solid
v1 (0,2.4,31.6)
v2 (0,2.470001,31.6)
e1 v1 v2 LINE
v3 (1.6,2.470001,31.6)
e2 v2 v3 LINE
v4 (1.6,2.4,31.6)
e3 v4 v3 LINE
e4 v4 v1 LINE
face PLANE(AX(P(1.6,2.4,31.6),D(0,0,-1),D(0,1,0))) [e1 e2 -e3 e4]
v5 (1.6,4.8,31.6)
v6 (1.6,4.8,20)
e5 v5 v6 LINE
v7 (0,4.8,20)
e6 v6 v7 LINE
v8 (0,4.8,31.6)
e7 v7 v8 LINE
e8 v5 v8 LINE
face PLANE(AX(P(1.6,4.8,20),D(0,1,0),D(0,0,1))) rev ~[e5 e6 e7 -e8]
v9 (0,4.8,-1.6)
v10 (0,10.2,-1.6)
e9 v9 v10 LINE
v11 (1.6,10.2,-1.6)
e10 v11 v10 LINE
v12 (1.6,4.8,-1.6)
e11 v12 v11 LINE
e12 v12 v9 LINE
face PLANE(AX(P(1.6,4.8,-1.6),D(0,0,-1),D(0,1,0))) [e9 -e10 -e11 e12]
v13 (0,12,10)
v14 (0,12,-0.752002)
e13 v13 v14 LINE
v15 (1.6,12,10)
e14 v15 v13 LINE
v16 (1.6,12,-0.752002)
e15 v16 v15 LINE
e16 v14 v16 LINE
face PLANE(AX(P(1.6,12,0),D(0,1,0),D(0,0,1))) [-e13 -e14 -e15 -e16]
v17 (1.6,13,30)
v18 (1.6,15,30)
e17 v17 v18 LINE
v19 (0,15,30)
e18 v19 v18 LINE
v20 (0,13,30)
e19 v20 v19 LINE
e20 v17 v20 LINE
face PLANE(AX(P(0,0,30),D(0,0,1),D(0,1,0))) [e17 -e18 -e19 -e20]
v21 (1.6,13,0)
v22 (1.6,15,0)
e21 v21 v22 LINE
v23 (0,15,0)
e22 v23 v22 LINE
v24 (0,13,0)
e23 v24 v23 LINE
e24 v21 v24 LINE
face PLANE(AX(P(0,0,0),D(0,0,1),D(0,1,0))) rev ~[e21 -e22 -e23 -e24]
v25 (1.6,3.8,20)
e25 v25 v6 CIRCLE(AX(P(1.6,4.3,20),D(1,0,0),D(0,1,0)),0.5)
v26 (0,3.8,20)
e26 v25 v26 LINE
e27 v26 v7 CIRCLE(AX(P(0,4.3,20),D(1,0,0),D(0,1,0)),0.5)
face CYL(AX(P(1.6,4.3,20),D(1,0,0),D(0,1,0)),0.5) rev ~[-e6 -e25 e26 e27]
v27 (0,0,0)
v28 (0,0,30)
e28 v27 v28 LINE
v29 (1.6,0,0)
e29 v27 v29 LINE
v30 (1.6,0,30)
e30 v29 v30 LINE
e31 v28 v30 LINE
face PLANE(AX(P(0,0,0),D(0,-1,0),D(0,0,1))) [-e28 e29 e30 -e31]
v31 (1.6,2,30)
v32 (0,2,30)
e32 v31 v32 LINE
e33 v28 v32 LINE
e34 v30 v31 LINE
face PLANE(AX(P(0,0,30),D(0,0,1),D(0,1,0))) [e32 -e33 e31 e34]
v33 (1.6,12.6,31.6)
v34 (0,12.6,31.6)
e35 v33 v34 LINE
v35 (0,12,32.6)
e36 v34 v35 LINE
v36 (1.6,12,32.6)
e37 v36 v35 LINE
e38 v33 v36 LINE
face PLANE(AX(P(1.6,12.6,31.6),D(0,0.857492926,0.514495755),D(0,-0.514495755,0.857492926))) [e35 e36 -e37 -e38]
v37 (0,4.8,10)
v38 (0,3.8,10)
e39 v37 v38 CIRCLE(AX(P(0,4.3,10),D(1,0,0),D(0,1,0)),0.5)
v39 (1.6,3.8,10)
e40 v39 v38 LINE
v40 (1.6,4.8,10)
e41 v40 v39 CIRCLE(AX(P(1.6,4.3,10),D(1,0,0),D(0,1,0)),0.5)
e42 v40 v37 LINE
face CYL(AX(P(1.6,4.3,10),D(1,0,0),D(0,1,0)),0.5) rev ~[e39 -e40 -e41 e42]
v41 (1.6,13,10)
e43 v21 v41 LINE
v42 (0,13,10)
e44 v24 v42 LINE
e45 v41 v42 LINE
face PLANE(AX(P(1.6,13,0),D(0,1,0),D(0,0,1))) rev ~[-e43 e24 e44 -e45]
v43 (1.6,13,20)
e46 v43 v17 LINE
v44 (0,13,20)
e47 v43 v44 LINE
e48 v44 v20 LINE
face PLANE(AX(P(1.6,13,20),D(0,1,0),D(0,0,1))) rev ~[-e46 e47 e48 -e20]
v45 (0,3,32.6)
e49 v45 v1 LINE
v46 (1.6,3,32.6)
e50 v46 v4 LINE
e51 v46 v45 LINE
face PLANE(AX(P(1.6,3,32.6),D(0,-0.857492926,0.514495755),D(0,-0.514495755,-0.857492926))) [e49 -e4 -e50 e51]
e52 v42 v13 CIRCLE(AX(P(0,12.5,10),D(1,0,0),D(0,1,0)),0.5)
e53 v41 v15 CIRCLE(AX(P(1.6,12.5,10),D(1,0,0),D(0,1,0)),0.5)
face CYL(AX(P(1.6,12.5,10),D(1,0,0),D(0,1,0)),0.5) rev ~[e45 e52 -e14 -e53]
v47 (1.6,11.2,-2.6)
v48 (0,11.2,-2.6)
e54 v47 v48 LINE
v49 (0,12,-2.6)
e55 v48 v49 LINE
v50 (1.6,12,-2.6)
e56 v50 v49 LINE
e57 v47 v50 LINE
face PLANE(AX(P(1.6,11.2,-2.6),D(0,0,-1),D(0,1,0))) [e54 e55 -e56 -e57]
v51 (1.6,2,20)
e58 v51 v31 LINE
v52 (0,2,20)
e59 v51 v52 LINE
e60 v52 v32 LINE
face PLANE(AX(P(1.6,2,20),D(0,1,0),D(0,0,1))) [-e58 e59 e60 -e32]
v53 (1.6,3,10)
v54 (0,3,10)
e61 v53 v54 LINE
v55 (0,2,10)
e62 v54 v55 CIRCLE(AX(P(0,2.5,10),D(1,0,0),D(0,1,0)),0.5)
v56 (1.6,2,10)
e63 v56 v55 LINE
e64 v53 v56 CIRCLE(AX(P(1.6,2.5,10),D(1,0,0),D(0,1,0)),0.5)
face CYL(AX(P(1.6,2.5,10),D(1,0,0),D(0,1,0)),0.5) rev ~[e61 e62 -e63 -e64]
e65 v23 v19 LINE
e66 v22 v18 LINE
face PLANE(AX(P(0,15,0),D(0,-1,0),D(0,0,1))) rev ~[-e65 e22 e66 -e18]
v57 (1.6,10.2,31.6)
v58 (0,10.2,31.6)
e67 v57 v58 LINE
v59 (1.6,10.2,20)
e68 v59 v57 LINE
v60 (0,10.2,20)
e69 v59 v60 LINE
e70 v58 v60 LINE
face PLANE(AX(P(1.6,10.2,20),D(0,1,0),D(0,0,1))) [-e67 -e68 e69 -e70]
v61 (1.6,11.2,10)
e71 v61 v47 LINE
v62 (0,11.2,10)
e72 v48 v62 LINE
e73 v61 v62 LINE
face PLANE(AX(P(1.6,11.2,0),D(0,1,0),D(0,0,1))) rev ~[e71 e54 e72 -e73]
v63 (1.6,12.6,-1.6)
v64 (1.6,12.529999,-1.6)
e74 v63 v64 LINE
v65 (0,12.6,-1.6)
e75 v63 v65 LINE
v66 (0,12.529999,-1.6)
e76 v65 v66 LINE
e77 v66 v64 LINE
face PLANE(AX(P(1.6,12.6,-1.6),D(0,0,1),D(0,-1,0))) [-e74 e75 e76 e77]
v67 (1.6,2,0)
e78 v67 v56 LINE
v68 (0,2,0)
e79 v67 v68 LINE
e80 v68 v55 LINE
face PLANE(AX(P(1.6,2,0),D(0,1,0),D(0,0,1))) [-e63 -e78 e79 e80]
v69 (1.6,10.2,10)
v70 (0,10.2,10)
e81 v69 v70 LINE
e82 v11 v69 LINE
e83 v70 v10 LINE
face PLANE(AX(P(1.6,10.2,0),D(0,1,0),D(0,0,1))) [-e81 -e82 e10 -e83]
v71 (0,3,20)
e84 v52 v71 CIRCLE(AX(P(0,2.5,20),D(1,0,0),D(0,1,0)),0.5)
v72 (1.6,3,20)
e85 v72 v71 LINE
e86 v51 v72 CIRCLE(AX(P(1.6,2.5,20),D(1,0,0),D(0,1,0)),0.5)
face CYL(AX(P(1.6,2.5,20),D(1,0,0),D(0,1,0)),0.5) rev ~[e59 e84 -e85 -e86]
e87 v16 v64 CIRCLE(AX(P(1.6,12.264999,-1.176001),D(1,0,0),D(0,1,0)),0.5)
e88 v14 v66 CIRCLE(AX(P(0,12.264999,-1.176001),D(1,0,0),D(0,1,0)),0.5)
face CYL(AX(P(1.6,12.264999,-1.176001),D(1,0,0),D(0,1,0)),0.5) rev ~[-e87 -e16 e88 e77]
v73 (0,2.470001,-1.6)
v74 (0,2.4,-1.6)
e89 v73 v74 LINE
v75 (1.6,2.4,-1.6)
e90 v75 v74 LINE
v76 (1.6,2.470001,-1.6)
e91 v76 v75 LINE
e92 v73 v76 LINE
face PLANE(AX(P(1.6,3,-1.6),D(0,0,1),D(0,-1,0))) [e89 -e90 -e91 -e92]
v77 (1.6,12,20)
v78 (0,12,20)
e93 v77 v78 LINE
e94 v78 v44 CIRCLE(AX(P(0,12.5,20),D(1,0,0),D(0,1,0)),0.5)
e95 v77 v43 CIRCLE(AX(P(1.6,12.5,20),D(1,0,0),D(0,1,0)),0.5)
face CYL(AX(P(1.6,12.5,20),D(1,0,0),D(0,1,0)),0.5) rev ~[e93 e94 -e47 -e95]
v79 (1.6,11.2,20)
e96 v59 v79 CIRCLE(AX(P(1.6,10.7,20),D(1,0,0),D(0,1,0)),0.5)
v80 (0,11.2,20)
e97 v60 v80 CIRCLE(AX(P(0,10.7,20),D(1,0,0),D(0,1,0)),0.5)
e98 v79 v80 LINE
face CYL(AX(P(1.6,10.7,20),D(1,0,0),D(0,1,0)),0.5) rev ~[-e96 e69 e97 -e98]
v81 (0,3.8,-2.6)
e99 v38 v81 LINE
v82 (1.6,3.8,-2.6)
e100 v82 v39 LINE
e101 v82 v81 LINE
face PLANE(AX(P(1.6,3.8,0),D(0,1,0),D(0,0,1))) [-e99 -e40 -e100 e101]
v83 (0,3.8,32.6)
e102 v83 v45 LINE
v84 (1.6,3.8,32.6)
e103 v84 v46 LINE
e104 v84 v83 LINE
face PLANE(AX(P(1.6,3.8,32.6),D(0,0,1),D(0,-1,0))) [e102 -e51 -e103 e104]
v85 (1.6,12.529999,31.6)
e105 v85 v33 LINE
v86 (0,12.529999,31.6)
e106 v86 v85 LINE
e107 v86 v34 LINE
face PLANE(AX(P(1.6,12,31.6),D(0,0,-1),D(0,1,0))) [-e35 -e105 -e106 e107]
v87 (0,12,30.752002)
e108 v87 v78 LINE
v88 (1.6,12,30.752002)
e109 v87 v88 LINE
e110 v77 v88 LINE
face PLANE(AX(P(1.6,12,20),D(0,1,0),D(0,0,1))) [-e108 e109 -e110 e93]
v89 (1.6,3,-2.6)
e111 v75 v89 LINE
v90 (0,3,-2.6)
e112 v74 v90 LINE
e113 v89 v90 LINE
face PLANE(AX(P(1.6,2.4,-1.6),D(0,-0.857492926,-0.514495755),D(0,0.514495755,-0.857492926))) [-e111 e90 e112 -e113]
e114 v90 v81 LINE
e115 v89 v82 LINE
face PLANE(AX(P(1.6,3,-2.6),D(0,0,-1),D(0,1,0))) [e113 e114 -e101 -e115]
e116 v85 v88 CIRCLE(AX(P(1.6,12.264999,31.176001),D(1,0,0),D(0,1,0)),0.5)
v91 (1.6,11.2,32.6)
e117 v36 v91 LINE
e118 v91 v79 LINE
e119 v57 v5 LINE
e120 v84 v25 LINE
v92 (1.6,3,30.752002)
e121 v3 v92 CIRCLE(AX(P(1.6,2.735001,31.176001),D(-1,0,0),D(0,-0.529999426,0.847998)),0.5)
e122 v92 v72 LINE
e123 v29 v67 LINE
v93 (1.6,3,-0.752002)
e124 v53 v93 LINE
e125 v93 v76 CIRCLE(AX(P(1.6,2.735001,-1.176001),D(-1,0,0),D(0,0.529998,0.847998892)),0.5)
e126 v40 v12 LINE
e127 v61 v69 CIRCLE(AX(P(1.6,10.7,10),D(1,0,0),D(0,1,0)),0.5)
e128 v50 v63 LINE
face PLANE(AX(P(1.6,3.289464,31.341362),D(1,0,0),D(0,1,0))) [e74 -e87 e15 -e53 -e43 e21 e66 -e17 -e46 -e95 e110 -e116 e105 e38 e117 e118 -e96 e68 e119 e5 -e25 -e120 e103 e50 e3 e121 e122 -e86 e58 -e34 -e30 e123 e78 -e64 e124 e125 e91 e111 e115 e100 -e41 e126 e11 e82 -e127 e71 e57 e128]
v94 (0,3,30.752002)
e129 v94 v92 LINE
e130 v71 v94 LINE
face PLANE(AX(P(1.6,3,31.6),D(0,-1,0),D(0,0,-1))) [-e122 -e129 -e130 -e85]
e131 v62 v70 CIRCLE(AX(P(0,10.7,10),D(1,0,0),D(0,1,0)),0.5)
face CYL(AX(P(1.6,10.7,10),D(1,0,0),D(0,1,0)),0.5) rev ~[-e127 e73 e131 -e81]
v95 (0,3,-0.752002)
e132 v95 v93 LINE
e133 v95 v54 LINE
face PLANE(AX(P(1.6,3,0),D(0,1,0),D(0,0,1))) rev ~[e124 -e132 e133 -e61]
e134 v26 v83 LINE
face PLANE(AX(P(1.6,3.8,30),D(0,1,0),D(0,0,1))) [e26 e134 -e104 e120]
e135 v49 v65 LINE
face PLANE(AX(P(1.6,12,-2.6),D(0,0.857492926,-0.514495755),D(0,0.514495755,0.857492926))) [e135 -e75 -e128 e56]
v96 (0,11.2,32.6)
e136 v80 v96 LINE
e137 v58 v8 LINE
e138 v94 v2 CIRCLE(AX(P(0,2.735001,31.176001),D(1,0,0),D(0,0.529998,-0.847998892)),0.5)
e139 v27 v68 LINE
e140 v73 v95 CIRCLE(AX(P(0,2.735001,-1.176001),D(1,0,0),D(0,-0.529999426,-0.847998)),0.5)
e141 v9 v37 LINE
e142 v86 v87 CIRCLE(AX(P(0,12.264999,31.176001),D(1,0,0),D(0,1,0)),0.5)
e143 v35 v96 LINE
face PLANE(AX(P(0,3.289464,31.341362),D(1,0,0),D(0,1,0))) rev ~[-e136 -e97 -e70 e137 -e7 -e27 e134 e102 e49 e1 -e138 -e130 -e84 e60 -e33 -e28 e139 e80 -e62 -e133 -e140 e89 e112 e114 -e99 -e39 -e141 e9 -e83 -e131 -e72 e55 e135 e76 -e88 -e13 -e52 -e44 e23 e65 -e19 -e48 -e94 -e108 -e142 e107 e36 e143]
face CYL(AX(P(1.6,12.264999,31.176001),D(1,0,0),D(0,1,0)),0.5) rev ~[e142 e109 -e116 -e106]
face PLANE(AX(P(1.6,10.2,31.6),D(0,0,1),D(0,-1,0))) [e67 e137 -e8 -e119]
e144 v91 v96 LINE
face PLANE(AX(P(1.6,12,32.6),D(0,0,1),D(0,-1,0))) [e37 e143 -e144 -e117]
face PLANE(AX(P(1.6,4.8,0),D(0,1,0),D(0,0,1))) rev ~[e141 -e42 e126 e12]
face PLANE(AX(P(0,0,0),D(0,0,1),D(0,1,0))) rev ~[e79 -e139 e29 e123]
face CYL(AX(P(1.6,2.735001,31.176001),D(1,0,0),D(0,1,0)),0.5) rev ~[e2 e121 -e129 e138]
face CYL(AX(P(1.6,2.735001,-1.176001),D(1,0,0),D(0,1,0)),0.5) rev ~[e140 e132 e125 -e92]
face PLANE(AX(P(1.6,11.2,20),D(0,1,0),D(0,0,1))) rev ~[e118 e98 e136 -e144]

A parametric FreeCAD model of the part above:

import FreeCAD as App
import Part
import Sketcher

V = App.Vector


def add_polygon(sketch, points):
    """Adds a closed chain of lines whose ends are joined by coincident constraints."""
    first, n = sketch.GeometryCount, len(points)
    for a, b in zip(points, points[1:] + points[:1]):
        sketch.addGeometry(Part.LineSegment(App.Vector(*a, 0), App.Vector(*b, 0)), False)
    for i in range(n):
        sketch.addConstraint(Sketcher.Constraint("Coincident", first + i, 2, first + (i + 1) % n, 1))

doc = App.newDocument("Part")
body = doc.addObject("PartDesign::Body", "Body")

sketch1 = body.newObject("Sketcher::SketchObject", "Sketch")
sketch1.AttachmentSupport = (doc.getObject("YZ_Plane"), [""])
sketch1.MapMode = "FlatFace"
add_polygon(sketch1, [(0, 30), (0, 0), (15, 0), (15, 30)])
sketch1.addConstraint([
    Sketcher.Constraint("Vertical", 0),
    Sketcher.Constraint("Horizontal", 1),
    Sketcher.Constraint("Vertical", 2),
    Sketcher.Constraint("Horizontal", 3),
    Sketcher.Constraint("Coincident", 0, 2, -1, 1),
    Sketcher.Constraint("DistanceX", 1, 1, 1, 2, 15.0),
    Sketcher.Constraint("DistanceY", 0, 2, 0, 1, 30.0),
])
pad1 = body.newObject("PartDesign::Pad", "Pad")
pad1.Profile = sketch1
pad1.Length = 1.6

sketch2 = body.newObject("Sketcher::SketchObject", "Sketch001")
sketch2.AttachmentSupport = (doc.getObject("YZ_Plane"), [""])
sketch2.MapMode = "FlatFace"
sketch2.AttachmentOffset = App.Placement(V(0, 0, 1.6), App.Rotation())
add_polygon(sketch2, [(2, 30), (2, 20), (3, 20), (3, 30)])
add_polygon(sketch2, [(3.8, 30), (3.8, 20), (4.8, 20), (4.8, 30)])
add_polygon(sketch2, [(10.2, 30), (10.2, 20), (11.2, 20), (11.2, 30)])
add_polygon(sketch2, [(12, 30), (12, 20), (13, 20), (13, 30)])
add_polygon(sketch2, [(12, 10), (12, 0), (13, 0), (13, 10)])
add_polygon(sketch2, [(10.2, 10), (10.2, 0), (11.2, 0), (11.2, 10)])
add_polygon(sketch2, [(3.8, 10), (3.8, 0), (4.8, 0), (4.8, 10)])
add_polygon(sketch2, [(2, 10), (2, 0), (3, 0), (3, 10)])
sketch2.addConstraint([
    Sketcher.Constraint("Vertical", 0),
    Sketcher.Constraint("Horizontal", 1),
    Sketcher.Constraint("Vertical", 2),
    Sketcher.Constraint("Horizontal", 3),
    Sketcher.Constraint("Vertical", 4),
    Sketcher.Constraint("Horizontal", 5),
    Sketcher.Constraint("Vertical", 6),
    Sketcher.Constraint("Horizontal", 7),
    Sketcher.Constraint("Vertical", 8),
    Sketcher.Constraint("Horizontal", 9),
    Sketcher.Constraint("Vertical", 10),
    Sketcher.Constraint("Horizontal", 11),
    Sketcher.Constraint("Vertical", 12),
    Sketcher.Constraint("Horizontal", 13),
    Sketcher.Constraint("Vertical", 14),
    Sketcher.Constraint("Horizontal", 15),
    Sketcher.Constraint("Vertical", 16),
    Sketcher.Constraint("Horizontal", 17),
    Sketcher.Constraint("Vertical", 18),
    Sketcher.Constraint("Horizontal", 19),
    Sketcher.Constraint("Vertical", 20),
    Sketcher.Constraint("Horizontal", 21),
    Sketcher.Constraint("Vertical", 22),
    Sketcher.Constraint("Horizontal", 23),
    Sketcher.Constraint("Vertical", 24),
    Sketcher.Constraint("Horizontal", 25),
    Sketcher.Constraint("Vertical", 26),
    Sketcher.Constraint("Horizontal", 27),
    Sketcher.Constraint("Vertical", 28),
    Sketcher.Constraint("Horizontal", 29),
    Sketcher.Constraint("Vertical", 30),
    Sketcher.Constraint("Horizontal", 31),
    Sketcher.Constraint("PointOnObject", 16, 2, -1),
    Sketcher.Constraint("PointOnObject", 20, 2, -1),
    Sketcher.Constraint("PointOnObject", 24, 2, -1),
    Sketcher.Constraint("PointOnObject", 28, 2, -1),
    Sketcher.Constraint("Horizontal", 1, 2, 4, 2),
    Sketcher.Constraint("Horizontal", 3, 2, 6, 2),
    Sketcher.Constraint("Horizontal", 5, 2, 8, 2),
    Sketcher.Constraint("Horizontal", 7, 2, 10, 2),
    Sketcher.Constraint("Horizontal", 9, 2, 12, 2),
    Sketcher.Constraint("Horizontal", 11, 2, 14, 2),
    Sketcher.Constraint("Horizontal", 19, 2, 22, 2),
    Sketcher.Constraint("Horizontal", 23, 2, 26, 2),
    Sketcher.Constraint("Horizontal", 27, 2, 30, 2),
    Sketcher.Constraint("Vertical", 15, 2, 16, 2),
    Sketcher.Constraint("Vertical", 14, 2, 17, 2),
    Sketcher.Constraint("Vertical", 11, 2, 20, 2),
    Sketcher.Constraint("Vertical", 10, 2, 21, 2),
    Sketcher.Constraint("Vertical", 7, 2, 24, 2),
    Sketcher.Constraint("Vertical", 6, 2, 25, 2),
    Sketcher.Constraint("Vertical", 3, 2, 28, 2),
    Sketcher.Constraint("Vertical", 2, 2, 29, 2),
    Sketcher.Constraint("Equal", 3, 5),
    Sketcher.Constraint("Equal", 7, 9),
    Sketcher.Constraint("Equal", 11, 13),
    Sketcher.Constraint("Equal", 14, 16),
    Sketcher.Constraint("DistanceX", 1, 1, 1, 2, 1.0),
    Sketcher.Constraint("DistanceY", 0, 2, 0, 1, 10.0),
    Sketcher.Constraint("DistanceX", -1, 1, 0, 2, 2.0),
    Sketcher.Constraint("DistanceY", -1, 1, 0, 2, 20.0),
    Sketcher.Constraint("DistanceX", -1, 1, 12, 2, 12.0),
    Sketcher.Constraint("DistanceX", -1, 1, 4, 2, 3.8),
    Sketcher.Constraint("DistanceX", -1, 1, 8, 2, 10.2),
])
pocket1 = body.newObject("PartDesign::Pocket", "Pocket")
pocket1.Profile = sketch2
pocket1.Length = 25

sketch3 = body.newObject("Sketcher::SketchObject", "Sketch002")
sketch3.AttachmentSupport = (doc.getObject("YZ_Plane"), [""])
sketch3.MapMode = "FlatFace"
sketch3.AttachmentOffset = App.Placement(V(0, 0, 1.6), App.Rotation())
add_polygon(sketch3, [(3, 30), (3.8, 30), (3.8, 32.6), (3, 32.6), (2.4, 31.6), (3, 31.6)])
add_polygon(sketch3, [(4.8, 31.6), (4.8, 30), (10.2, 30), (10.2, 31.6)])
add_polygon(sketch3, [(12, 32.6), (11.2, 32.6), (11.2, 30), (12, 30), (12, 31.6), (12.6, 31.6)])
add_polygon(sketch3, [(2.4, -1.6), (3, -2.6), (3.8, -2.6), (3.8, 0), (3, 0), (3, -1.6)])
add_polygon(sketch3, [(4.8, 0), (4.8, -1.6), (10.2, -1.6), (10.2, 0)])
add_polygon(sketch3, [(12, 0), (11.2, 0), (11.2, -2.6), (12, -2.6), (12.6, -1.6), (12, -1.6)])
sketch3.addConstraint([
    Sketcher.Constraint("Horizontal", 0),
    Sketcher.Constraint("Vertical", 1),
    Sketcher.Constraint("Horizontal", 2),
    Sketcher.Constraint("Horizontal", 4),
    Sketcher.Constraint("Vertical", 5),
    Sketcher.Constraint("Vertical", 6),
    Sketcher.Constraint("Horizontal", 7),
    Sketcher.Constraint("Vertical", 8),
    Sketcher.Constraint("Horizontal", 9),
    Sketcher.Constraint("Horizontal", 10),
    Sketcher.Constraint("Vertical", 11),
    Sketcher.Constraint("Horizontal", 12),
    Sketcher.Constraint("Vertical", 13),
    Sketcher.Constraint("Horizontal", 14),
    Sketcher.Constraint("Horizontal", 17),
    Sketcher.Constraint("Vertical", 18),
    Sketcher.Constraint("Horizontal", 19),
    Sketcher.Constraint("Vertical", 20),
    Sketcher.Constraint("Horizontal", 21),
    Sketcher.Constraint("Vertical", 22),
    Sketcher.Constraint("Horizontal", 23),
    Sketcher.Constraint("Vertical", 24),
    Sketcher.Constraint("Horizontal", 25),
    Sketcher.Constraint("Horizontal", 26),
    Sketcher.Constraint("Vertical", 27),
    Sketcher.Constraint("Horizontal", 28),
    Sketcher.Constraint("Horizontal", 30),
    Sketcher.Constraint("Vertical", 31),
    Sketcher.Constraint("PointOnObject", 18, 2, -1),
    Sketcher.Constraint("PointOnObject", 24, 2, -1),
    Sketcher.Constraint("PointOnObject", 26, 2, -1),
    Sketcher.Constraint("Parallel", 15, 16),
    Sketcher.Constraint("Parallel", 3, 29),
    Sketcher.Constraint("Horizontal", 5, 2, 6, 2),
    Sketcher.Constraint("Horizontal", 4, 2, 8, 2),
    Sketcher.Constraint("Horizontal", 2, 2, 10, 2),
    Sketcher.Constraint("Horizontal", 7, 2, 11, 2),
    Sketcher.Constraint("Horizontal", 9, 2, 13, 2),
    Sketcher.Constraint("Horizontal", 21, 2, 22, 2),
    Sketcher.Constraint("Horizontal", 17, 2, 27, 2),
    Sketcher.Constraint("Horizontal", 23, 2, 29, 2),
    Sketcher.Constraint("Vertical", 2, 2, 4, 2),
    Sketcher.Constraint("Vertical", 13, 2, 15, 2),
    Sketcher.Constraint("Vertical", 5, 2, 16, 2),
    Sketcher.Constraint("Vertical", 1, 2, 17, 2),
    Sketcher.Constraint("Vertical", 16, 2, 19, 2),
    Sketcher.Constraint("Vertical", 3, 2, 21, 2),
    Sketcher.Constraint("Vertical", 9, 2, 22, 2),
    Sketcher.Constraint("Vertical", 8, 2, 23, 2),
    Sketcher.Constraint("Vertical", 11, 2, 26, 2),
    Sketcher.Constraint("Vertical", 15, 2, 28, 2),
    Sketcher.Constraint("Vertical", 14, 2, 29, 2),
    Sketcher.Constraint("Vertical", 28, 2, 30, 2),
    Sketcher.Constraint("Equal", 2, 10),
    Sketcher.Constraint("Equal", 11, 18),
    Sketcher.Constraint("DistanceX", 0, 1, 0, 2, 0.8),
    Sketcher.Constraint("DistanceX", 4, 1, 4, 2, 0.6),
    Sketcher.Constraint("DistanceX", 7, 1, 7, 2, 5.4),
    Sketcher.Constraint("DistanceY", 1, 1, 1, 2, 2.6),
    Sketcher.Constraint("DistanceY", 5, 2, 5, 1, 1.6),
    Sketcher.Constraint("DistanceY", -1, 1, 0, 2, 30.0),
    Sketcher.Constraint("DistanceX", -1, 1, 2, 2, 3.0),
    Sketcher.Constraint("DistanceX", -1, 1, 12, 2, 12.0),
    Sketcher.Constraint("DistanceX", 0, 2, 6, 2, 1.0),
])
pad2 = body.newObject("PartDesign::Pad", "Pad001")
pad2.Profile = sketch3
pad2.Length = 1.6
pad2.Reversed = True

sketch4 = body.newObject("Sketcher::SketchObject", "Sketch003")
sketch4.AttachmentSupport = (doc.getObject("YZ_Plane"), [""])
sketch4.MapMode = "FlatFace"
sketch4.AttachmentOffset = App.Placement(V(0, 0, 1.6), App.Rotation())
sketch4.addGeometry([
    Part.Circle(V(4.3, 20, 0), V(0, 0, 1), 0.5),
    Part.Circle(V(2.735001, 31.176001, 0), V(0, 0, 1), 0.5),
    Part.Circle(V(2.5, 20, 0), V(0, 0, 1), 0.5),
    Part.Circle(V(10.7, 20, 0), V(0, 0, 1), 0.5),
    Part.Circle(V(12.5, 20, 0), V(0, 0, 1), 0.5),
    Part.Circle(V(12.264999, 31.176001, 0), V(0, 0, 1), 0.5),
    Part.Circle(V(12.264999, -1.176001, 0), V(0, 0, 1), 0.5),
    Part.Circle(V(12.5, 10, 0), V(0, 0, 1), 0.5),
    Part.Circle(V(10.7, 10, 0), V(0, 0, 1), 0.5),
    Part.Circle(V(4.3, 10, 0), V(0, 0, 1), 0.5),
    Part.Circle(V(2.5, 10, 0), V(0, 0, 1), 0.5),
    Part.Circle(V(2.735001, -1.176001, 0), V(0, 0, 1), 0.5),
], False)
sketch4.addConstraint([
    Sketcher.Constraint("Equal", 0, 1),
    Sketcher.Constraint("Equal", 1, 2),
    Sketcher.Constraint("Equal", 2, 3),
    Sketcher.Constraint("Equal", 3, 4),
    Sketcher.Constraint("Equal", 4, 5),
    Sketcher.Constraint("Equal", 5, 6),
    Sketcher.Constraint("Equal", 6, 7),
    Sketcher.Constraint("Equal", 7, 8),
    Sketcher.Constraint("Equal", 8, 9),
    Sketcher.Constraint("Equal", 9, 10),
    Sketcher.Constraint("Equal", 10, 11),
    Sketcher.Constraint("Horizontal", 0, 3, 2, 3),
    Sketcher.Constraint("Horizontal", 2, 3, 3, 3),
    Sketcher.Constraint("Horizontal", 3, 3, 4, 3),
    Sketcher.Constraint("Horizontal", 1, 3, 5, 3),
    Sketcher.Constraint("Horizontal", 7, 3, 8, 3),
    Sketcher.Constraint("Horizontal", 8, 3, 9, 3),
    Sketcher.Constraint("Horizontal", 9, 3, 10, 3),
    Sketcher.Constraint("Horizontal", 6, 3, 11, 3),
    Sketcher.Constraint("Vertical", 5, 3, 6, 3),
    Sketcher.Constraint("Vertical", 4, 3, 7, 3),
    Sketcher.Constraint("Vertical", 3, 3, 8, 3),
    Sketcher.Constraint("Vertical", 0, 3, 9, 3),
    Sketcher.Constraint("Vertical", 2, 3, 10, 3),
    Sketcher.Constraint("Vertical", 1, 3, 11, 3),
    Sketcher.Constraint("Diameter", 0, 1.0),
    Sketcher.Constraint("DistanceY", -1, 1, 0, 3, 20.0),
    Sketcher.Constraint("DistanceY", -1, 1, 7, 3, 10.0),
    Sketcher.Constraint("DistanceX", 2, 3, 4, 3, 10.0),
    Sketcher.Constraint("DistanceX", -1, 1, 0, 3, 4.3),
    Sketcher.Constraint("DistanceX", -1, 1, 2, 3, 2.5),
    Sketcher.Constraint("DistanceX", -1, 1, 3, 3, 10.7),
    Sketcher.Constraint("DistanceX", -1, 1, 1, 3, 2.735001),
    Sketcher.Constraint("DistanceY", -1, 1, 1, 3, 31.176001),
    Sketcher.Constraint("DistanceX", -1, 1, 5, 3, 12.264999),
    Sketcher.Constraint("DistanceY", 6, 3, -1, 1, 1.176001),
])
pocket2 = body.newObject("PartDesign::Pocket", "Pocket001")
pocket2.Profile = sketch4
pocket2.Length = 25

doc.recompute()
